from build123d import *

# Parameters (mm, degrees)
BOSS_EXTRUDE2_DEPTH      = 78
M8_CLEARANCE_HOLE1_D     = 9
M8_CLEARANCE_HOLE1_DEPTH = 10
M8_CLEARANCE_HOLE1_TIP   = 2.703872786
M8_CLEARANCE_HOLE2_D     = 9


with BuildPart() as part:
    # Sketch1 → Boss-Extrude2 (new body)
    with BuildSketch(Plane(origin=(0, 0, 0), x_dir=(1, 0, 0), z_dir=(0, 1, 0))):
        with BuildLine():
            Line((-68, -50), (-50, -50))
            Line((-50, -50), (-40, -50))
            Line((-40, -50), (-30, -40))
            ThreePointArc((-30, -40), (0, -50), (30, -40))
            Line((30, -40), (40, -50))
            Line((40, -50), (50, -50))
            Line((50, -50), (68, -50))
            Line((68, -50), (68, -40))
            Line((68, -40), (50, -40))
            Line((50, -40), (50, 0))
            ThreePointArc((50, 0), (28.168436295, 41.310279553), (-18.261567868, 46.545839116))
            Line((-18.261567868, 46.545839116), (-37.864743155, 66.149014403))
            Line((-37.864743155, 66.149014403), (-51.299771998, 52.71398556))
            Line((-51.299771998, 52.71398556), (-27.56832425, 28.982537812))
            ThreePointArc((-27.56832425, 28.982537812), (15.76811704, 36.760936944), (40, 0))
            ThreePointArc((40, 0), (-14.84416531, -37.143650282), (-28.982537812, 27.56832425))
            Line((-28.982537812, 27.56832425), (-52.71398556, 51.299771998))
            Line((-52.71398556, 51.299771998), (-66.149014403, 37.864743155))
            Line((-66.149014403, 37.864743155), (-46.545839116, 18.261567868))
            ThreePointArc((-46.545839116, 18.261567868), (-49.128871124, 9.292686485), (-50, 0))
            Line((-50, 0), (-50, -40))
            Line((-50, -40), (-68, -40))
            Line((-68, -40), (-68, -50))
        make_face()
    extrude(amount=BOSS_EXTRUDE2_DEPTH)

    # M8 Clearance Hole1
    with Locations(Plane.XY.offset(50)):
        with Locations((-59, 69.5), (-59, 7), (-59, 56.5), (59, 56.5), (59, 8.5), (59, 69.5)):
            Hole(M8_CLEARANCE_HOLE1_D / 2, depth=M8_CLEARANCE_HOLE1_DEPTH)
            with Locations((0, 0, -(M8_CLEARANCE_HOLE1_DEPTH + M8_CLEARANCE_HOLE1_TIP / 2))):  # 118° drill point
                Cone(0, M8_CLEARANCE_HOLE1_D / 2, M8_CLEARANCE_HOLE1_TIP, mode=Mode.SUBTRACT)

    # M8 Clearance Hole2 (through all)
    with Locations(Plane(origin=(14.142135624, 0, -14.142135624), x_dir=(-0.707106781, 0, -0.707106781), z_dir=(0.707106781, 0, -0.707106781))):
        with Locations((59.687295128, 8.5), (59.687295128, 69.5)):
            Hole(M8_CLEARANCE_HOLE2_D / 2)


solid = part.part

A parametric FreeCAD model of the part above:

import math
import FreeCAD as App
import Part
import Sketcher
from FreeCAD import Vector
Q = App.Units.Quantity

doc = App.newDocument("Part")
body = doc.addObject("PartDesign::Body", "Body")

# Sketch on XZ plane
sketch1 = doc.addObject("Sketcher::SketchObject", "Sketch")
body.addObject(sketch1)
sketch1.AttachmentSupport = (doc.XZ_Plane, [""])
sketch1.MapMode = "FlatFace"
sketch1.addGeometry(Part.LineSegment(Vector(-68, 50, 0), Vector(-40, 50, 0)), False)
sketch1.addGeometry(Part.LineSegment(Vector(-40, 50, 0), Vector(-30, 40, 0)), False)
sketch1.addGeometry(Part.ArcOfCircle(Part.Circle(Vector(0, 0, 0), Vector(0, 0, 1), 50), math.radians(53), math.radians(127)), False)
sketch1.addGeometry(Part.LineSegment(Vector(30, 40, 0), Vector(40, 50, 0)), False)
sketch1.addGeometry(Part.LineSegment(Vector(40, 50, 0), Vector(68, 50, 0)), False)
sketch1.addGeometry(Part.LineSegment(Vector(68, 50, 0), Vector(68, 40, 0)), False)
sketch1.addGeometry(Part.LineSegment(Vector(68, 40, 0), Vector(50, 40, 0)), False)
sketch1.addGeometry(Part.LineSegment(Vector(50, 40, 0), Vector(50, 0, 0)), False)
sketch1.addGeometry(Part.ArcOfCircle(Part.Circle(Vector(0, 0, 0), Vector(0, 0, 1), 50), math.radians(-111), math.radians(0)), False)
sketch1.addGeometry(Part.LineSegment(Vector(-18, -47, 0), Vector(-38, -66, 0)), False)
sketch1.addGeometry(Part.LineSegment(Vector(-38, -66, 0), Vector(-51, -53, 0)), False)
sketch1.addGeometry(Part.LineSegment(Vector(-51, -53, 0), Vector(-28, -29, 0)), False)
sketch1.addGeometry(Part.ArcOfCircle(Part.Circle(Vector(0, 0, 0), Vector(0, 0, 1), 40), math.radians(-134), math.radians(0)), False)
sketch1.addGeometry(Part.ArcOfCircle(Part.Circle(Vector(0, 0, 0), Vector(0, 0, 1), 40), math.radians(0), math.radians(224)), False)
sketch1.addGeometry(Part.LineSegment(Vector(-29, -28, 0), Vector(-53, -51, 0)), False)
sketch1.addGeometry(Part.LineSegment(Vector(-53, -51, 0), Vector(-66, -38, 0)), False)
sketch1.addGeometry(Part.LineSegment(Vector(-66, -38, 0), Vector(-47, -18, 0)), False)
sketch1.addGeometry(Part.ArcOfCircle(Part.Circle(Vector(0, 0, 0), Vector(0, 0, 1), 50), math.radians(180), math.radians(201)), False)
sketch1.addGeometry(Part.LineSegment(Vector(-50, 0, 0), Vector(-50, 40, 0)), False)
sketch1.addGeometry(Part.LineSegment(Vector(-50, 40, 0), Vector(-68, 40, 0)), False)
sketch1.addGeometry(Part.LineSegment(Vector(-68, 40, 0), Vector(-68, 50, 0)), False)
sketch1.addConstraint(Sketcher.Constraint("Coincident", 0, 2, 1, 1))
sketch1.addConstraint(Sketcher.Constraint("Coincident", 1, 2, 2, 2))
sketch1.addConstraint(Sketcher.Constraint("Coincident", 2, 1, 3, 1))
sketch1.addConstraint(Sketcher.Constraint("Coincident", 3, 2, 4, 1))
sketch1.addConstraint(Sketcher.Constraint("Coincident", 4, 2, 5, 1))
sketch1.addConstraint(Sketcher.Constraint("Coincident", 5, 2, 6, 1))
sketch1.addConstraint(Sketcher.Constraint("Coincident", 6, 2, 7, 1))
sketch1.addConstraint(Sketcher.Constraint("Tangent", 7, 2, 8, 2))
sketch1.addConstraint(Sketcher.Constraint("Coincident", 8, 1, 9, 1))
sketch1.addConstraint(Sketcher.Constraint("Coincident", 9, 2, 10, 1))
sketch1.addConstraint(Sketcher.Constraint("Coincident", 10, 2, 11, 1))
sketch1.addConstraint(Sketcher.Constraint("Coincident", 11, 2, 12, 1))
sketch1.addConstraint(Sketcher.Constraint("Tangent", 12, 2, 13, 1))
sketch1.addConstraint(Sketcher.Constraint("Coincident", 13, 2, 14, 1))
sketch1.addConstraint(Sketcher.Constraint("Coincident", 14, 2, 15, 1))
sketch1.addConstraint(Sketcher.Constraint("Coincident", 15, 2, 16, 1))
sketch1.addConstraint(Sketcher.Constraint("Coincident", 16, 2, 17, 2))
sketch1.addConstraint(Sketcher.Constraint("Tangent", 17, 1, 18, 1))
sketch1.addConstraint(Sketcher.Constraint("Coincident", 18, 2, 19, 1))
sketch1.addConstraint(Sketcher.Constraint("Coincident", 19, 2, 20, 1))
sketch1.addConstraint(Sketcher.Constraint("Coincident", 20, 2, 0, 1))
sketch1.addConstraint(Sketcher.Constraint("Horizontal", 0))
sketch1.addConstraint(Sketcher.Constraint("Horizontal", 4))
sketch1.addConstraint(Sketcher.Constraint("Vertical", 5))
sketch1.addConstraint(Sketcher.Constraint("Horizontal", 6))
sketch1.addConstraint(Sketcher.Constraint("Vertical", 7))
sketch1.addConstraint(Sketcher.Constraint("Vertical", 18))
sketch1.addConstraint(Sketcher.Constraint("Horizontal", 19))
sketch1.addConstraint(Sketcher.Constraint("Vertical", 20))
sketch1.addConstraint(Sketcher.Constraint("Coincident", 2, 3, -1, 1))
sketch1.addConstraint(Sketcher.Constraint("Coincident", 8, 3, -1, 1))
sketch1.addConstraint(Sketcher.Constraint("Coincident", 12, 3, -1, 1))
sketch1.addConstraint(Sketcher.Constraint("Coincident", 17, 3, -1, 1))
sketch1.addConstraint(Sketcher.Constraint("Equal", 2, 8))
sketch1.addConstraint(Sketcher.Constraint("Equal", 12, 13))
sketch1.addConstraint(Sketcher.Constraint("Equal", 8, 17))
sketch1.addConstraint(Sketcher.Constraint("Symmetric", 0, 2, 3, 2, -2))
sketch1.addConstraint(Sketcher.Constraint("Symmetric", 5, 2, 19, 2, -2))
sketch1.addConstraint(Sketcher.Constraint("PointOnObject", 12, 2, -1))
sketch1.addConstraint(Sketcher.Constraint("Perpendicular", 1, 3))
sketch1.addConstraint(Sketcher.Constraint("Parallel", 3, 9))
sketch1.addConstraint(Sketcher.Constraint("Perpendicular", 9, 10))
sketch1.addConstraint(Sketcher.Constraint("Perpendicular", 10, 11))
sketch1.addConstraint(Sketcher.Constraint("Parallel", 11, 14))
sketch1.addConstraint(Sketcher.Constraint("Perpendicular", 14, 15))
sketch1.addConstraint(Sketcher.Constraint("Perpendicular", 15, 16))
sketch1.addConstraint(Sketcher.Constraint("Horizontal", 1, 2, 2, 1))
sketch1.addConstraint(Sketcher.Constraint("Horizontal", 2, 1, 5, 2))
sketch1.addConstraint(Sketcher.Constraint("Vertical", 3, 2, 12, 2))
sketch1.addConstraint(Sketcher.Constraint("Equal", 11, 14))
sketch1.addConstraint(Sketcher.Constraint("Equal", 10, 15))
sketch1.addConstraint(Sketcher.Constraint("Equal", 9, 16))
sketch1.addConstraint(Sketcher.Constraint("Radius", 2, Q("50 mm")))
sketch1.addConstraint(Sketcher.Constraint("Radius", 12, Q("40 mm")))
sketch1.addConstraint(Sketcher.Constraint("DistanceX", 0, 1, 0, 2, Q("28 mm")))
sketch1.addConstraint(Sketcher.Constraint("DistanceY", 5, 2, 5, 1, Q("10 mm")))
sketch1.addConstraint(Sketcher.Constraint("Distance", 10, Q("19 mm")))
sketch1.addConstraint(Sketcher.Constraint("DistanceY", 8, 1, 11, 2, Q("17.563301 mm")))
sketch1.addConstraint(Sketcher.Constraint("DistanceX", 10, 2, -1, 1, Q("51.299772 mm")))
pad1 = doc.addObject("PartDesign::Pad", "Pad")
body.addObject(pad1)
pad1.Profile = sketch1
pad1.Length = 78
pad1.Reversed = True

# Sketch on XY plane
sketch2 = doc.addObject("Sketcher::SketchObject", "Sketch001")
body.addObject(sketch2)
sketch2.AttachmentSupport = (doc.XY_Plane, [""])
sketch2.MapMode = "FlatFace"
sketch2.AttachmentOffset = App.Placement(Vector(0, 0, 50), App.Rotation())
sketch2.addGeometry(Part.Circle(Vector(-59, 69.5, 0), Vector(0, 0, 1), 4.5), False)
sketch2.addGeometry(Part.Circle(Vector(-59, 7, 0), Vector(0, 0, 1), 4.5), False)
sketch2.addGeometry(Part.Circle(Vector(-59, 56.5, 0), Vector(0, 0, 1), 4.5), False)
sketch2.addGeometry(Part.Circle(Vector(59, 56.5, 0), Vector(0, 0, 1), 4.5), False)
sketch2.addGeometry(Part.Circle(Vector(59, 8.5, 0), Vector(0, 0, 1), 4.5), False)
sketch2.addGeometry(Part.Circle(Vector(59, 69.5, 0), Vector(0, 0, 1), 4.5), False)
sketch2.addConstraint(Sketcher.Constraint("Equal", 0, 1))
sketch2.addConstraint(Sketcher.Constraint("Equal", 1, 2))
sketch2.addConstraint(Sketcher.Constraint("Equal", 2, 3))
sketch2.addConstraint(Sketcher.Constraint("Equal", 3, 4))
sketch2.addConstraint(Sketcher.Constraint("Equal", 4, 5))
sketch2.addConstraint(Sketcher.Constraint("Symmetric", 2, 3, 3, 3, -2))
sketch2.addConstraint(Sketcher.Constraint("Symmetric", 0, 3, 5, 3, -2))
sketch2.addConstraint(Sketcher.Constraint("Vertical", 0, 3, 1, 3))
sketch2.addConstraint(Sketcher.Constraint("Vertical", 1, 3, 2, 3))
sketch2.addConstraint(Sketcher.Constraint("Vertical", 3, 3, 4, 3))
sketch2.addConstraint(Sketcher.Constraint("Diameter", 0, Q("9 mm")))
sketch2.addConstraint(Sketcher.Constraint("DistanceX", 0, 3, -1, 1, Q("59 mm")))
sketch2.addConstraint(Sketcher.Constraint("DistanceY", -1, 1, 1, 3, Q("7 mm")))
sketch2.addConstraint(Sketcher.Constraint("DistanceY", 2, 3, 0, 3, Q("13 mm")))
sketch2.addConstraint(Sketcher.Constraint("DistanceY", 4, 3, 3, 3, Q("48 mm")))
sketch2.addConstraint(Sketcher.Constraint("DistanceY", -1, 1, 0, 3, Q("69.5 mm")))
doc.recompute()
hole = doc.addObject("PartDesign::Hole", "Hole")
body.addObject(hole)
hole.Profile = sketch2
hole.ThreadType = "None"
hole.Diameter = 9
hole.DepthType = "Dimension"
hole.Depth = 10
hole.DrillPoint = "Angled"
hole.DrillPointAngle = 118

# Sketch on an angled plane
sketch3 = doc.addObject("Sketcher::SketchObject", "Sketch002")
body.addObject(sketch3)
sketch3.Placement = App.Placement(Vector(14.142136, 0, -14.142136), App.Rotation(Vector(-0.707106781, 0, -0.707106781), Vector(0, 0.999999999, 0), Vector(0.707106781, 0, -0.707106781), "ZXY"))
sketch3.addGeometry(Part.Circle(Vector(59.7, 8.5, 0), Vector(0, 0, 1), 4.5), False)
sketch3.addGeometry(Part.Circle(Vector(59.7, 69.5, 0), Vector(0, 0, 1), 4.5), False)
sketch3.addConstraint(Sketcher.Constraint("Equal", 0, 1))
sketch3.addConstraint(Sketcher.Constraint("Vertical", 0, 3, 1, 3))
sketch3.addConstraint(Sketcher.Constraint("Diameter", 0, Q("9 mm")))
sketch3.addConstraint(Sketcher.Constraint("DistanceY", 0, 3, 1, 3, Q("61 mm")))
sketch3.addConstraint(Sketcher.Constraint("DistanceY", -1, 1, 0, 3, Q("8.5 mm")))
sketch3.addConstraint(Sketcher.Constraint("DistanceX", -1, 1, 0, 3, Q("59.687295 mm")))
doc.recompute()
hole2 = doc.addObject("PartDesign::Hole", "Hole001")
body.addObject(hole2)
hole2.Profile = sketch3
hole2.ThreadType = "None"
hole2.Diameter = 9
hole2.DepthType = "ThroughAll"

doc.recompute()
